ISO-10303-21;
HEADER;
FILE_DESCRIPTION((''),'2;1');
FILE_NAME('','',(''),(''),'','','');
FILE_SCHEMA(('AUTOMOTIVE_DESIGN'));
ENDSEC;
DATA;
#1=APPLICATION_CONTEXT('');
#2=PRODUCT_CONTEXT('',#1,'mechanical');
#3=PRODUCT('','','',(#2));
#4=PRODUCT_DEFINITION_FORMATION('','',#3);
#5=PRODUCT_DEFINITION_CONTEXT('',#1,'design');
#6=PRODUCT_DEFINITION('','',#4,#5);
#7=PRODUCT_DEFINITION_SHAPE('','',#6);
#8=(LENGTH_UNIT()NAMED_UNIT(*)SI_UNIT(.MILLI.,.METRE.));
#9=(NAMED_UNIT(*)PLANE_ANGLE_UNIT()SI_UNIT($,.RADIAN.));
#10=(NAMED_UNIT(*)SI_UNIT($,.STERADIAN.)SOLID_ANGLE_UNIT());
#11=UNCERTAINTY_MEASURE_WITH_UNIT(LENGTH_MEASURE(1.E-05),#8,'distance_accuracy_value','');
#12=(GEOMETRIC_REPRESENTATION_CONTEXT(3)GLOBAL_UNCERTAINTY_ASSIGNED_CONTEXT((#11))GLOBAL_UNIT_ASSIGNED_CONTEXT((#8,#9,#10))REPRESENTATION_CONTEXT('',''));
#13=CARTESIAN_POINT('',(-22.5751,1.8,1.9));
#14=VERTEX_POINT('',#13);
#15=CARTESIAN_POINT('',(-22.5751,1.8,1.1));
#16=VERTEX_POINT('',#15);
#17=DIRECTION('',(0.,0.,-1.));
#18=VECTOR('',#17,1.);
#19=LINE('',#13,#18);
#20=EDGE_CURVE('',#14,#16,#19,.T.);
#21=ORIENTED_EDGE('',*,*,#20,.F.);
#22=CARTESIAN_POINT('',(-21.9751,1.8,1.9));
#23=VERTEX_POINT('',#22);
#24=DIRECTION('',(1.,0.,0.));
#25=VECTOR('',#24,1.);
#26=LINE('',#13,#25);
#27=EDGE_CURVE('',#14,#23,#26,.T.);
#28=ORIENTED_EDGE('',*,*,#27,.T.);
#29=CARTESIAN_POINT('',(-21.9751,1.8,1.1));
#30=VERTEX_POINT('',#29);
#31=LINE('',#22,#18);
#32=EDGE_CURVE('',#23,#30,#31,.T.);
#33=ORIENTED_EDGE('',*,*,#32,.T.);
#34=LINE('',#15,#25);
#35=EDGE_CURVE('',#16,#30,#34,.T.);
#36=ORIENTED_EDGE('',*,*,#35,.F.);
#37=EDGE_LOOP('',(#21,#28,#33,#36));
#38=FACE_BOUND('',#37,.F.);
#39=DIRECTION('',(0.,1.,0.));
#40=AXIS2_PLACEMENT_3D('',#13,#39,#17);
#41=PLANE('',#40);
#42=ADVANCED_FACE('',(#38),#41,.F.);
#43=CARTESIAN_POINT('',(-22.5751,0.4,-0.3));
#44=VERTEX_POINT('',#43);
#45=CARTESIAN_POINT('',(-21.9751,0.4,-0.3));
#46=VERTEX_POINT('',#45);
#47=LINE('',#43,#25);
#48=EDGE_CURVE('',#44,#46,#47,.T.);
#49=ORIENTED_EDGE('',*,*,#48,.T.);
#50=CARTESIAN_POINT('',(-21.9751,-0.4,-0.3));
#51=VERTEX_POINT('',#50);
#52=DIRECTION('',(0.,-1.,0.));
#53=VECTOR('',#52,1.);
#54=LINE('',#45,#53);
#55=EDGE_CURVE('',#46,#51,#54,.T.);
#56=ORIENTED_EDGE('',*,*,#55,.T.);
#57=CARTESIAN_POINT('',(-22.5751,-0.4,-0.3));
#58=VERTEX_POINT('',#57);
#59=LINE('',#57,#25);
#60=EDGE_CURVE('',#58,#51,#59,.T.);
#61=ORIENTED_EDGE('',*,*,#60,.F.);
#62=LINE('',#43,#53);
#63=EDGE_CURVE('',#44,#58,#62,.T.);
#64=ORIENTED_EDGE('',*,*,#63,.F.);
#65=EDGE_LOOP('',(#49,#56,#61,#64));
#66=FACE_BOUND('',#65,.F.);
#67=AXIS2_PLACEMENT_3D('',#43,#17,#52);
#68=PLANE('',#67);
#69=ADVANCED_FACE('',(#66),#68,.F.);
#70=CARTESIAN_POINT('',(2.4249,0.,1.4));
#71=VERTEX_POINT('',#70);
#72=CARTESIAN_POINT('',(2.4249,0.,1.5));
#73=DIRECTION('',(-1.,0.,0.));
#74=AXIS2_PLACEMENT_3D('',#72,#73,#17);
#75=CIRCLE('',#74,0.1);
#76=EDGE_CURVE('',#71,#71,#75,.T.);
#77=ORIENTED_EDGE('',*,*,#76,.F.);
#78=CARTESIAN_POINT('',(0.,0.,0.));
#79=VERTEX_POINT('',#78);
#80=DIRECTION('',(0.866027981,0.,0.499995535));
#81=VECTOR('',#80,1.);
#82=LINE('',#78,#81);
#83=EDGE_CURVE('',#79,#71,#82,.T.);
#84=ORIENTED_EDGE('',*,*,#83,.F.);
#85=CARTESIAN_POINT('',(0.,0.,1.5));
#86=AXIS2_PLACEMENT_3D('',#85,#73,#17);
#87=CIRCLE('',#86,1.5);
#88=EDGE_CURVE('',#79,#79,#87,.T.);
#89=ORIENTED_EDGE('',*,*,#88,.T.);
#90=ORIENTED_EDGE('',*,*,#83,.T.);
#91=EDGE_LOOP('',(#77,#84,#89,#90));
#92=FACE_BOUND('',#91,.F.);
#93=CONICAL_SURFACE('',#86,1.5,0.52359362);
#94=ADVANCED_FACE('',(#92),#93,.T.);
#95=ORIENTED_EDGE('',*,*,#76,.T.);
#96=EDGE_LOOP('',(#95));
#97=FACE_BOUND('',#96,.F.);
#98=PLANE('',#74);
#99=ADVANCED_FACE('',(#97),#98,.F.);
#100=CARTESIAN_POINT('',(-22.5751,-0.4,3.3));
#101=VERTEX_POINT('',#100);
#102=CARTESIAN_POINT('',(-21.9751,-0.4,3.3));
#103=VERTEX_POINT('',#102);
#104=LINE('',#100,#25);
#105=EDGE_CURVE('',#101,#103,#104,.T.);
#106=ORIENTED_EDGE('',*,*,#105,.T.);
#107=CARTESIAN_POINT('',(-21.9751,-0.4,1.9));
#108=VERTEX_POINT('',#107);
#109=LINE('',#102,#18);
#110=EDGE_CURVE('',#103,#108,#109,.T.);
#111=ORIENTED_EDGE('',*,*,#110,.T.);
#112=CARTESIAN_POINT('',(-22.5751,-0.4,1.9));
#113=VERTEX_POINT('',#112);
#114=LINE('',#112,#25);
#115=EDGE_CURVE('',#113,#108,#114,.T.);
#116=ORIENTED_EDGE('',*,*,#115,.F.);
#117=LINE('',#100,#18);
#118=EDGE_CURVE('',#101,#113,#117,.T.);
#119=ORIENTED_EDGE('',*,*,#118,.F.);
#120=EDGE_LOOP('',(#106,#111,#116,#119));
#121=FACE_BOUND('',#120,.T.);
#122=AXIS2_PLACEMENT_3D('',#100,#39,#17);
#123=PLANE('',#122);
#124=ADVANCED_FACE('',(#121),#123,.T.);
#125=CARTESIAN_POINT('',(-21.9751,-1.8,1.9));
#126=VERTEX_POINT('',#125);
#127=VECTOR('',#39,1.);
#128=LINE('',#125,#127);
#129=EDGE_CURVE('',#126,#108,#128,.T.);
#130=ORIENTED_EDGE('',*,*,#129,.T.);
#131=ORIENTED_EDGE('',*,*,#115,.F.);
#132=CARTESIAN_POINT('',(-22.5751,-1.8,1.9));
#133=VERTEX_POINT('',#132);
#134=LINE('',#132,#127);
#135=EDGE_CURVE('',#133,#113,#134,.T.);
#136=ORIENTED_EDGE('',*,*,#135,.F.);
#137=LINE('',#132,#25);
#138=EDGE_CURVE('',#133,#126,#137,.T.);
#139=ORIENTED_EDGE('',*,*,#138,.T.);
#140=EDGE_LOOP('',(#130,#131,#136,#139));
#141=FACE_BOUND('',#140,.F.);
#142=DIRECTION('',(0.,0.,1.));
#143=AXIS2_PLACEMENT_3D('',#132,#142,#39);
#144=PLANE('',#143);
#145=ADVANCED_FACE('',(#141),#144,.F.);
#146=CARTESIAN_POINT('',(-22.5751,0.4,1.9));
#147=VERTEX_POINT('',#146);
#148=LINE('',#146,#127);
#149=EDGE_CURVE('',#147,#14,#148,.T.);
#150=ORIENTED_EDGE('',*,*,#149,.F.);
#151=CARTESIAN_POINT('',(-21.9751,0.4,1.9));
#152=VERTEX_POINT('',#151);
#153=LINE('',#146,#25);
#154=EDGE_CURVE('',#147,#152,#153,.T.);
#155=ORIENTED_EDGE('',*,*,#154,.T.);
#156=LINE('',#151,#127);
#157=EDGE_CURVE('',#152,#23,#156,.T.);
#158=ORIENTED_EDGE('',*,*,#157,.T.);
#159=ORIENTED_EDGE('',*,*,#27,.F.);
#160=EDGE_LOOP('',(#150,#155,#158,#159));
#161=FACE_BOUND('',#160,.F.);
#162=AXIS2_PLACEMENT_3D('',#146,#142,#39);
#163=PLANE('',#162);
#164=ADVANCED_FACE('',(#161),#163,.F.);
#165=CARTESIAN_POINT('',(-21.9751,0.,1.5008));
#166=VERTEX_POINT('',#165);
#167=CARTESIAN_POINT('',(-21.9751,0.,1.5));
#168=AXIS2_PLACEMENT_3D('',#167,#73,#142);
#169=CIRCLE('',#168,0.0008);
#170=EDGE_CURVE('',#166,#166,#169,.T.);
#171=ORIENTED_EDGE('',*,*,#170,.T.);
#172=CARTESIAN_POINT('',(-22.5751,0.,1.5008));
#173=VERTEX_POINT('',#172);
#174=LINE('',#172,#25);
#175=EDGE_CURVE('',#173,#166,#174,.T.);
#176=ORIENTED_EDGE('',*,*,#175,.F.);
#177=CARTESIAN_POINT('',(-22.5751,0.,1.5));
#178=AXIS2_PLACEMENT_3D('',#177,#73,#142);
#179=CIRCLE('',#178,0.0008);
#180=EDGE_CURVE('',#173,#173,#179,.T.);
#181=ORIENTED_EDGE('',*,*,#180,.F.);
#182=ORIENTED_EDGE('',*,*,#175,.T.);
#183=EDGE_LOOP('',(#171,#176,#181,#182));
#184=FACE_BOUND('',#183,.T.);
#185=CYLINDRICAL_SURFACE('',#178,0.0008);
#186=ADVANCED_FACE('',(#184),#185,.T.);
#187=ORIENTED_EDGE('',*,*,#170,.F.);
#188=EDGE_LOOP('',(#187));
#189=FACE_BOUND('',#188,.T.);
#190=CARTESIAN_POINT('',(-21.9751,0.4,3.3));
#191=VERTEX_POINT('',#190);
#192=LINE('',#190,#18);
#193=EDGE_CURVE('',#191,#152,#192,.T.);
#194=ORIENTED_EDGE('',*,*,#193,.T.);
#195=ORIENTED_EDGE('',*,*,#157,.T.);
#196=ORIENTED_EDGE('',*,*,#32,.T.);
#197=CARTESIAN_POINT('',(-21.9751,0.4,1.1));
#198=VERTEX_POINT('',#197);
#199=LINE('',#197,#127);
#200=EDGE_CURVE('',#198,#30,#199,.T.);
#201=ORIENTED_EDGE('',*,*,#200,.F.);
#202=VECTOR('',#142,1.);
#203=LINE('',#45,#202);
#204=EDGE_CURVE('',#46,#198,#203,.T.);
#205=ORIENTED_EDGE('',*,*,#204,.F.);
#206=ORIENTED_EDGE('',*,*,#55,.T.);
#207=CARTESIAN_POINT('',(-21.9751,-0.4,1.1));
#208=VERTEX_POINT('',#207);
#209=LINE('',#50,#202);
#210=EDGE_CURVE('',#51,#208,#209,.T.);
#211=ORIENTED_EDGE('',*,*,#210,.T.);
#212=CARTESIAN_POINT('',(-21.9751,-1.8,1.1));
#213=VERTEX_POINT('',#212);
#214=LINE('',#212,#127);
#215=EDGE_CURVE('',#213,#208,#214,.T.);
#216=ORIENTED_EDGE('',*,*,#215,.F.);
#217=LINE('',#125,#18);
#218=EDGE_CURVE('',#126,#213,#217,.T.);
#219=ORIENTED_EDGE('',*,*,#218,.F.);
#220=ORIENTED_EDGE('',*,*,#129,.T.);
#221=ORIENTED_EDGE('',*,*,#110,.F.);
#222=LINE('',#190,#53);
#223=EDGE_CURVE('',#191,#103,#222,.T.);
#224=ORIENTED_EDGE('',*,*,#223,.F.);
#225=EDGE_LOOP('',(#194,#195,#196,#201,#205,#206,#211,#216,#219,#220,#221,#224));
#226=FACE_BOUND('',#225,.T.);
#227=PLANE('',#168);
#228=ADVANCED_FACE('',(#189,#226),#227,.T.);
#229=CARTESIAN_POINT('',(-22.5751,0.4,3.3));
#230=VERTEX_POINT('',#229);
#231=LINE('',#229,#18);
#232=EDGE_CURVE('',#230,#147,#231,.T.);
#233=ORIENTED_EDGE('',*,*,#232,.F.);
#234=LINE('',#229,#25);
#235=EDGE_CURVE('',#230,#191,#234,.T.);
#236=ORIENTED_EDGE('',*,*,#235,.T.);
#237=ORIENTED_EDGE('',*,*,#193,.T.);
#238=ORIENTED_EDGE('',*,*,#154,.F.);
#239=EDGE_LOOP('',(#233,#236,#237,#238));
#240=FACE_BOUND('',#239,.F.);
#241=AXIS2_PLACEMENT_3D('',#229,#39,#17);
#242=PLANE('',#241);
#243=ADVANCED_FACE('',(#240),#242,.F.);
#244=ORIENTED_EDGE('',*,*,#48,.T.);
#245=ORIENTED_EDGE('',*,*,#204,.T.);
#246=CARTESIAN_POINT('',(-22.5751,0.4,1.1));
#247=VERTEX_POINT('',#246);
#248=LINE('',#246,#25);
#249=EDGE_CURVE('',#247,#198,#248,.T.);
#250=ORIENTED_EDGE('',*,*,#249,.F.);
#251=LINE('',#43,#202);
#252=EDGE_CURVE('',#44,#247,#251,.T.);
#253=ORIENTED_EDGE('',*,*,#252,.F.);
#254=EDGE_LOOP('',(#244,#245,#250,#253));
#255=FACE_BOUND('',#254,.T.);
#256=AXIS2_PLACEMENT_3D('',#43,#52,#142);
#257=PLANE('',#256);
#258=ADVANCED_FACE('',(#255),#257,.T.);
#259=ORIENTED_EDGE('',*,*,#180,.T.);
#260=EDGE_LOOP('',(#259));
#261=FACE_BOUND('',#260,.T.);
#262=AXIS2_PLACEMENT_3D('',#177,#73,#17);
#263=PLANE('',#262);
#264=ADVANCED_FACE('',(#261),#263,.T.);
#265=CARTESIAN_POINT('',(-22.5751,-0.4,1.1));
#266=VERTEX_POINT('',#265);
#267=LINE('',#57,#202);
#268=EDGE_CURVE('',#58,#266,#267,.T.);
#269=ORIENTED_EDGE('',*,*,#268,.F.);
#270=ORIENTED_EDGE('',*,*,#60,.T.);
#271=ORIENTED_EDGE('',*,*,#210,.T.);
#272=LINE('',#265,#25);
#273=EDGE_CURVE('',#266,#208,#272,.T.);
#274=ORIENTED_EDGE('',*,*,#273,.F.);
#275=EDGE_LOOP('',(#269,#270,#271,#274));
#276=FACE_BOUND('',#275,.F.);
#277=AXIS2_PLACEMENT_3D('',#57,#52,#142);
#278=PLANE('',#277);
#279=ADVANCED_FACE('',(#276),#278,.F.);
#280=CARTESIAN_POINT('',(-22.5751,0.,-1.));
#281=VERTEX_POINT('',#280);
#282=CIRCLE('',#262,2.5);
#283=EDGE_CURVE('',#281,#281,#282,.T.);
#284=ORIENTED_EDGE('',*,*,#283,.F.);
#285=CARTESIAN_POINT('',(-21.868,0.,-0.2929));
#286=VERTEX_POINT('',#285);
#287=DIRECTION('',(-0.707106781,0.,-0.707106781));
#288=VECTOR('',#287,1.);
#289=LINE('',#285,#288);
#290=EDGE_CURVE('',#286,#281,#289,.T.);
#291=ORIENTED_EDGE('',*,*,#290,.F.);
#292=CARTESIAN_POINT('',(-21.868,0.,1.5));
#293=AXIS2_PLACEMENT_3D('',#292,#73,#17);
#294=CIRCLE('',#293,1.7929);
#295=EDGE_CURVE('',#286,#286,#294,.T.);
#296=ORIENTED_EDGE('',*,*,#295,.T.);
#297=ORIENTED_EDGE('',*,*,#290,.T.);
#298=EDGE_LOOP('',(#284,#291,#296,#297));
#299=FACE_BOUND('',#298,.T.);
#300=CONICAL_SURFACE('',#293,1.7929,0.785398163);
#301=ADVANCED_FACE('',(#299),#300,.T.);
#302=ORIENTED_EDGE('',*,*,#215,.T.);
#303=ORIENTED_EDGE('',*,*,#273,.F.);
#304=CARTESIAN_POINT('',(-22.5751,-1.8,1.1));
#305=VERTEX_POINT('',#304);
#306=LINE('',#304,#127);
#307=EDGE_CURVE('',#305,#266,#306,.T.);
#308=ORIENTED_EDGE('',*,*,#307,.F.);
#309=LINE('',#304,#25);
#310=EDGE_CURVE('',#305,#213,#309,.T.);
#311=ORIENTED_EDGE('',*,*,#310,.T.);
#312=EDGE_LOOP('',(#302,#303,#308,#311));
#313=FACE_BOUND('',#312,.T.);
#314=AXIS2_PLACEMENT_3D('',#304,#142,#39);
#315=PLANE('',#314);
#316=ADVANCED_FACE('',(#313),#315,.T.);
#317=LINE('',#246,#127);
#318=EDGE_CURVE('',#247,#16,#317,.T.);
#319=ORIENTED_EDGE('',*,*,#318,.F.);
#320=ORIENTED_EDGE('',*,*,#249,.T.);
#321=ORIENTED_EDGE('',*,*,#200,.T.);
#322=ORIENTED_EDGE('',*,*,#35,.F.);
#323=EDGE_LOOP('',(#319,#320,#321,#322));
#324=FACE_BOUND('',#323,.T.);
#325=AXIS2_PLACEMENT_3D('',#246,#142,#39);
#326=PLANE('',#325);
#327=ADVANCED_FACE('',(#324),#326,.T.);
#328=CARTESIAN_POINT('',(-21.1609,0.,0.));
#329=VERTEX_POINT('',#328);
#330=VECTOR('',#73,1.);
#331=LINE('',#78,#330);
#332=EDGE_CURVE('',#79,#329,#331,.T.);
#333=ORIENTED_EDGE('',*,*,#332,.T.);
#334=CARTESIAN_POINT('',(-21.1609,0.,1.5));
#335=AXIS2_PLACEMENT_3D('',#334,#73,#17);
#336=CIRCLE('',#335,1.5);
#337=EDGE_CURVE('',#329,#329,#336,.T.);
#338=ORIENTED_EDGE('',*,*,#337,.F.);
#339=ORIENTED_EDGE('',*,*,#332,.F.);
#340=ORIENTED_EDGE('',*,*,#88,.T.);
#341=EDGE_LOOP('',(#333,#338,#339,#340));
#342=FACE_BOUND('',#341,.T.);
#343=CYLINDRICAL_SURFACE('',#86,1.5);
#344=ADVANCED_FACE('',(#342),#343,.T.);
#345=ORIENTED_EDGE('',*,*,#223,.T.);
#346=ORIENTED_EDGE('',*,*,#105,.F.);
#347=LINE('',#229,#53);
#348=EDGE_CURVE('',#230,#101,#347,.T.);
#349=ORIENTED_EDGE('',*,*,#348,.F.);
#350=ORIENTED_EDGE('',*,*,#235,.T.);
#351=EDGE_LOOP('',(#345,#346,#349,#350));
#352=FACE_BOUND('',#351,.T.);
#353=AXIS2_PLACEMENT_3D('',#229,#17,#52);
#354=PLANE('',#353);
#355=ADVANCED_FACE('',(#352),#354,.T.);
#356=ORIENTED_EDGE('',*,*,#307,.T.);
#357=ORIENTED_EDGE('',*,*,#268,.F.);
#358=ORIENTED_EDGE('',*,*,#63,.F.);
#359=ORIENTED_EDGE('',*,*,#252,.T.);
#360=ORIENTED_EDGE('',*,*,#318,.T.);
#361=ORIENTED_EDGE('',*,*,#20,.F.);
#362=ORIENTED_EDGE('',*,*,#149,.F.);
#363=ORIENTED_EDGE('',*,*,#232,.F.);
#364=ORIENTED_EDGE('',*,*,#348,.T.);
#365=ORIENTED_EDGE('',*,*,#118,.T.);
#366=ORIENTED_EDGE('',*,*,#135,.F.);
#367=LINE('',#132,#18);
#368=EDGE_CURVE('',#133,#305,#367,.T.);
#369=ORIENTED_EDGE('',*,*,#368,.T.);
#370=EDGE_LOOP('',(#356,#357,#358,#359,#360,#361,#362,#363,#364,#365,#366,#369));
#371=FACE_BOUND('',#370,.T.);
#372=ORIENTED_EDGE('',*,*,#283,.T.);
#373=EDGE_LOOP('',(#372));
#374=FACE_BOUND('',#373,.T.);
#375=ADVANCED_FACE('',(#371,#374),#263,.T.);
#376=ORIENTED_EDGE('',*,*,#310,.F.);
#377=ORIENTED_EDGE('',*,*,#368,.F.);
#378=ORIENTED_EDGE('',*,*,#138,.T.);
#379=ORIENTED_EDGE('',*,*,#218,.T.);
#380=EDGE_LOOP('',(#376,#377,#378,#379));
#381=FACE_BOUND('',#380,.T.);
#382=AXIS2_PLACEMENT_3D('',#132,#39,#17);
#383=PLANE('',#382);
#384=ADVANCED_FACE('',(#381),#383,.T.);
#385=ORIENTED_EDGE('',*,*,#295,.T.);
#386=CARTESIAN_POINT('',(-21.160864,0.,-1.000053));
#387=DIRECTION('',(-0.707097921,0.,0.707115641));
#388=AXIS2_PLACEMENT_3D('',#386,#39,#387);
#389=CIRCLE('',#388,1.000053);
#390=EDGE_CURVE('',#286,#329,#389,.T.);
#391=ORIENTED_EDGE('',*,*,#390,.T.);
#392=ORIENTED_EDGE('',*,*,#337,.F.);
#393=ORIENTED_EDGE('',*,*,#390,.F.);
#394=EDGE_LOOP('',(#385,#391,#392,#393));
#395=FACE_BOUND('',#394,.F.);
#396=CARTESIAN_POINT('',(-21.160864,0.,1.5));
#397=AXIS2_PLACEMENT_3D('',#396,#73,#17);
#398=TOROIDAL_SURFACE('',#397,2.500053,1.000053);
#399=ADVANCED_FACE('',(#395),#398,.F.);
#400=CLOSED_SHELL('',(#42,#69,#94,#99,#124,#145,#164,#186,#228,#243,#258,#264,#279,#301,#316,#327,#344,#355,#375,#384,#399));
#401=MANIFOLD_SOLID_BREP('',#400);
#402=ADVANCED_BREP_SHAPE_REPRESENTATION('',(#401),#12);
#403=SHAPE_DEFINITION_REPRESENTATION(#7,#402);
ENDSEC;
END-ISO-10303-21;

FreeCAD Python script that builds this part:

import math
import FreeCAD as App
import Part
import Sketcher
Q = App.Units.Quantity

doc = App.newDocument("Part")
body = doc.addObject("PartDesign::Body", "Body")

# Sketch on XZ plane
sketch1 = body.newObject("Sketcher::SketchObject", "Sketch")
sketch1.AttachmentSupport = (doc.getObject("XZ_Plane"), [""])
sketch1.MapMode = "FlatFace"
sketch1.addGeometry(Part.LineSegment(App.Vector(2.42, 1.4, 0), App.Vector(0, 0, 0)), False)
sketch1.addGeometry(Part.LineSegment(App.Vector(0, 0, 0), App.Vector(-21.16, 0, 0)), False)
sketch1.addGeometry(Part.ArcOfCircle(Part.Circle(App.Vector(-21.16, -1, 0), App.Vector(0, 0, 1), 1), math.radians(90), math.radians(135)), False)
sketch1.addGeometry(Part.LineSegment(App.Vector(-21.87, -0.29, 0), App.Vector(-22.58, -1, 0)), False)
sketch1.addGeometry(Part.LineSegment(App.Vector(-22.58, -1, 0), App.Vector(-22.58, 1.5, 0)), False)
sketch1.addGeometry(Part.LineSegment(App.Vector(-22.58, 1.5, 0), App.Vector(2.42, 1.5, 0)), False)
sketch1.addGeometry(Part.LineSegment(App.Vector(2.42, 1.5, 0), App.Vector(2.42, 1.4, 0)), False)
sketch1.addGeometry(Part.LineSegment(App.Vector(2.42, 1.5, 0), App.Vector(-22.58, 1.5, 0)), True)  # axis
sketch1.addConstraint(Sketcher.Constraint("Coincident", 0, 2, 1, 1))
sketch1.addConstraint(Sketcher.Constraint("Tangent", 1, 2, 2, 1))
sketch1.addConstraint(Sketcher.Constraint("Tangent", 2, 2, 3, 1))
sketch1.addConstraint(Sketcher.Constraint("Coincident", 3, 2, 4, 1))
sketch1.addConstraint(Sketcher.Constraint("Coincident", 4, 2, 5, 1))
sketch1.addConstraint(Sketcher.Constraint("Coincident", 5, 2, 6, 1))
sketch1.addConstraint(Sketcher.Constraint("Coincident", 6, 2, 0, 1))
sketch1.addConstraint(Sketcher.Constraint("Horizontal", 1))
sketch1.addConstraint(Sketcher.Constraint("Vertical", 4))
sketch1.addConstraint(Sketcher.Constraint("Horizontal", 5))
sketch1.addConstraint(Sketcher.Constraint("Vertical", 6))
sketch1.addConstraint(Sketcher.Constraint("Horizontal", 7))
sketch1.addConstraint(Sketcher.Constraint("Coincident", 0, 2, -1, 1))
sketch1.addConstraint(Sketcher.Constraint("Coincident", 7, 1, 5, 2))
sketch1.addConstraint(Sketcher.Constraint("Horizontal", 2, 3, 3, 2))
sketch1.addConstraint(Sketcher.Constraint("Vertical", 3, 2, 7, 2))
sketch1.addConstraint(Sketcher.Constraint("Radius", 2, Q("1 mm")))
sketch1.addConstraint(Sketcher.Constraint("DistanceX", 5, 1, 5, 2, Q("25 mm")))
sketch1.addConstraint(Sketcher.Constraint("Angle", 3, Q("-135 deg")))
sketch1.addConstraint(Sketcher.Constraint("DistanceY", 4, 1, 4, 2, Q("2.5 mm")))
sketch1.addConstraint(Sketcher.Constraint("DistanceY", 6, 2, 6, 1, Q("0.1 mm")))
sketch1.addConstraint(Sketcher.Constraint("Angle", 0, Q("-150.0003 deg")))
revolution = body.newObject("PartDesign::Revolution", "Revolution")
revolution.Profile = sketch1
revolution.ReferenceAxis = (sketch1, ["Axis0"])
revolution.Angle = 360

# Sketch on YZ plane
sketch2 = body.newObject("Sketcher::SketchObject", "Sketch001")
sketch2.AttachmentSupport = (doc.getObject("YZ_Plane"), [""])
sketch2.MapMode = "FlatFace"
sketch2.AttachmentOffset = App.Placement(App.Vector(0, 0, -22.5751), App.Rotation())
sketch2.addGeometry(Part.LineSegment(App.Vector(0.4, 1.9, 0), App.Vector(1.8, 1.9, 0)), False)
sketch2.addGeometry(Part.LineSegment(App.Vector(1.8, 1.9, 0), App.Vector(1.8, 1.1, 0)), False)
sketch2.addGeometry(Part.LineSegment(App.Vector(1.8, 1.1, 0), App.Vector(0.4, 1.1, 0)), False)
sketch2.addGeometry(Part.LineSegment(App.Vector(0.4, 1.1, 0), App.Vector(0.4, -0.3, 0)), False)
sketch2.addGeometry(Part.LineSegment(App.Vector(0.4, -0.3, 0), App.Vector(-0.4, -0.3, 0)), False)
sketch2.addGeometry(Part.LineSegment(App.Vector(-0.4, -0.3, 0), App.Vector(-0.4, 1.1, 0)), False)
sketch2.addGeometry(Part.LineSegment(App.Vector(-0.4, 1.1, 0), App.Vector(-1.8, 1.1, 0)), False)
sketch2.addGeometry(Part.LineSegment(App.Vector(-1.8, 1.1, 0), App.Vector(-1.8, 1.9, 0)), False)
sketch2.addGeometry(Part.LineSegment(App.Vector(-1.8, 1.9, 0), App.Vector(-0.4, 1.9, 0)), False)
sketch2.addGeometry(Part.LineSegment(App.Vector(-0.4, 1.9, 0), App.Vector(-0.4, 3.3, 0)), False)
sketch2.addGeometry(Part.LineSegment(App.Vector(-0.4, 3.3, 0), App.Vector(0.4, 3.3, 0)), False)
sketch2.addGeometry(Part.LineSegment(App.Vector(0.4, 3.3, 0), App.Vector(0.4, 1.9, 0)), False)
sketch2.addGeometry(Part.Circle(App.Vector(0, 1.5, 0), App.Vector(0, 0, 1), 0.0008), False)
sketch2.addConstraint(Sketcher.Constraint("Coincident", 0, 2, 1, 1))
sketch2.addConstraint(Sketcher.Constraint("Coincident", 1, 2, 2, 1))
sketch2.addConstraint(Sketcher.Constraint("Coincident", 2, 2, 3, 1))
sketch2.addConstraint(Sketcher.Constraint("Coincident", 3, 2, 4, 1))
sketch2.addConstraint(Sketcher.Constraint("Coincident", 4, 2, 5, 1))
sketch2.addConstraint(Sketcher.Constraint("Coincident", 5, 2, 6, 1))
sketch2.addConstraint(Sketcher.Constraint("Coincident", 6, 2, 7, 1))
sketch2.addConstraint(Sketcher.Constraint("Coincident", 7, 2, 8, 1))
sketch2.addConstraint(Sketcher.Constraint("Coincident", 8, 2, 9, 1))
sketch2.addConstraint(Sketcher.Constraint("Coincident", 9, 2, 10, 1))
sketch2.addConstraint(Sketcher.Constraint("Coincident", 10, 2, 11, 1))
sketch2.addConstraint(Sketcher.Constraint("Coincident", 11, 2, 0, 1))
sketch2.addConstraint(Sketcher.Constraint("Horizontal", 0))
sketch2.addConstraint(Sketcher.Constraint("Vertical", 1))
sketch2.addConstraint(Sketcher.Constraint("Horizontal", 2))
sketch2.addConstraint(Sketcher.Constraint("Vertical", 3))
sketch2.addConstraint(Sketcher.Constraint("Horizontal", 4))
sketch2.addConstraint(Sketcher.Constraint("Vertical", 5))
sketch2.addConstraint(Sketcher.Constraint("Horizontal", 6))
sketch2.addConstraint(Sketcher.Constraint("Vertical", 7))
sketch2.addConstraint(Sketcher.Constraint("Horizontal", 8))
sketch2.addConstraint(Sketcher.Constraint("Vertical", 9))
sketch2.addConstraint(Sketcher.Constraint("Horizontal", 10))
sketch2.addConstraint(Sketcher.Constraint("Vertical", 11))
sketch2.addConstraint(Sketcher.Constraint("Symmetric", 2, 2, 5, 2, -2))
sketch2.addConstraint(Sketcher.Constraint("Symmetric", 0, 2, 7, 2, -2))
sketch2.addConstraint(Sketcher.Constraint("PointOnObject", 12, 3, -2))
sketch2.addConstraint(Sketcher.Constraint("Vertical", 5, 2, 8, 2))
sketch2.addConstraint(Sketcher.Constraint("Vertical", 3, 2, 10, 2))
sketch2.addConstraint(Sketcher.Constraint("Equal", 10, 1))
sketch2.addConstraint(Sketcher.Constraint("Equal", 8, 3))
sketch2.addConstraint(Sketcher.Constraint("Equal", 5, 9))
sketch2.addConstraint(Sketcher.Constraint("DistanceX", 4, 2, 4, 1, Q("0.8 mm")))
sketch2.addConstraint(Sketcher.Constraint("DistanceX", -1, 1, 0, 2, Q("1.8 mm")))
sketch2.addConstraint(Sketcher.Constraint("DistanceY", 12, 3, 0, 2, Q("0.4 mm")))
sketch2.addConstraint(Sketcher.Constraint("Diameter", 12, Q("0.0016 mm")))
sketch2.addConstraint(Sketcher.Constraint("DistanceY", -1, 1, 12, 3, Q("1.5 mm")))
pocket1 = body.newObject("PartDesign::Pocket", "Pocket")
pocket1.Profile = sketch2
pocket1.Length = 0.6
pocket1.Reversed = True

doc.recompute()
